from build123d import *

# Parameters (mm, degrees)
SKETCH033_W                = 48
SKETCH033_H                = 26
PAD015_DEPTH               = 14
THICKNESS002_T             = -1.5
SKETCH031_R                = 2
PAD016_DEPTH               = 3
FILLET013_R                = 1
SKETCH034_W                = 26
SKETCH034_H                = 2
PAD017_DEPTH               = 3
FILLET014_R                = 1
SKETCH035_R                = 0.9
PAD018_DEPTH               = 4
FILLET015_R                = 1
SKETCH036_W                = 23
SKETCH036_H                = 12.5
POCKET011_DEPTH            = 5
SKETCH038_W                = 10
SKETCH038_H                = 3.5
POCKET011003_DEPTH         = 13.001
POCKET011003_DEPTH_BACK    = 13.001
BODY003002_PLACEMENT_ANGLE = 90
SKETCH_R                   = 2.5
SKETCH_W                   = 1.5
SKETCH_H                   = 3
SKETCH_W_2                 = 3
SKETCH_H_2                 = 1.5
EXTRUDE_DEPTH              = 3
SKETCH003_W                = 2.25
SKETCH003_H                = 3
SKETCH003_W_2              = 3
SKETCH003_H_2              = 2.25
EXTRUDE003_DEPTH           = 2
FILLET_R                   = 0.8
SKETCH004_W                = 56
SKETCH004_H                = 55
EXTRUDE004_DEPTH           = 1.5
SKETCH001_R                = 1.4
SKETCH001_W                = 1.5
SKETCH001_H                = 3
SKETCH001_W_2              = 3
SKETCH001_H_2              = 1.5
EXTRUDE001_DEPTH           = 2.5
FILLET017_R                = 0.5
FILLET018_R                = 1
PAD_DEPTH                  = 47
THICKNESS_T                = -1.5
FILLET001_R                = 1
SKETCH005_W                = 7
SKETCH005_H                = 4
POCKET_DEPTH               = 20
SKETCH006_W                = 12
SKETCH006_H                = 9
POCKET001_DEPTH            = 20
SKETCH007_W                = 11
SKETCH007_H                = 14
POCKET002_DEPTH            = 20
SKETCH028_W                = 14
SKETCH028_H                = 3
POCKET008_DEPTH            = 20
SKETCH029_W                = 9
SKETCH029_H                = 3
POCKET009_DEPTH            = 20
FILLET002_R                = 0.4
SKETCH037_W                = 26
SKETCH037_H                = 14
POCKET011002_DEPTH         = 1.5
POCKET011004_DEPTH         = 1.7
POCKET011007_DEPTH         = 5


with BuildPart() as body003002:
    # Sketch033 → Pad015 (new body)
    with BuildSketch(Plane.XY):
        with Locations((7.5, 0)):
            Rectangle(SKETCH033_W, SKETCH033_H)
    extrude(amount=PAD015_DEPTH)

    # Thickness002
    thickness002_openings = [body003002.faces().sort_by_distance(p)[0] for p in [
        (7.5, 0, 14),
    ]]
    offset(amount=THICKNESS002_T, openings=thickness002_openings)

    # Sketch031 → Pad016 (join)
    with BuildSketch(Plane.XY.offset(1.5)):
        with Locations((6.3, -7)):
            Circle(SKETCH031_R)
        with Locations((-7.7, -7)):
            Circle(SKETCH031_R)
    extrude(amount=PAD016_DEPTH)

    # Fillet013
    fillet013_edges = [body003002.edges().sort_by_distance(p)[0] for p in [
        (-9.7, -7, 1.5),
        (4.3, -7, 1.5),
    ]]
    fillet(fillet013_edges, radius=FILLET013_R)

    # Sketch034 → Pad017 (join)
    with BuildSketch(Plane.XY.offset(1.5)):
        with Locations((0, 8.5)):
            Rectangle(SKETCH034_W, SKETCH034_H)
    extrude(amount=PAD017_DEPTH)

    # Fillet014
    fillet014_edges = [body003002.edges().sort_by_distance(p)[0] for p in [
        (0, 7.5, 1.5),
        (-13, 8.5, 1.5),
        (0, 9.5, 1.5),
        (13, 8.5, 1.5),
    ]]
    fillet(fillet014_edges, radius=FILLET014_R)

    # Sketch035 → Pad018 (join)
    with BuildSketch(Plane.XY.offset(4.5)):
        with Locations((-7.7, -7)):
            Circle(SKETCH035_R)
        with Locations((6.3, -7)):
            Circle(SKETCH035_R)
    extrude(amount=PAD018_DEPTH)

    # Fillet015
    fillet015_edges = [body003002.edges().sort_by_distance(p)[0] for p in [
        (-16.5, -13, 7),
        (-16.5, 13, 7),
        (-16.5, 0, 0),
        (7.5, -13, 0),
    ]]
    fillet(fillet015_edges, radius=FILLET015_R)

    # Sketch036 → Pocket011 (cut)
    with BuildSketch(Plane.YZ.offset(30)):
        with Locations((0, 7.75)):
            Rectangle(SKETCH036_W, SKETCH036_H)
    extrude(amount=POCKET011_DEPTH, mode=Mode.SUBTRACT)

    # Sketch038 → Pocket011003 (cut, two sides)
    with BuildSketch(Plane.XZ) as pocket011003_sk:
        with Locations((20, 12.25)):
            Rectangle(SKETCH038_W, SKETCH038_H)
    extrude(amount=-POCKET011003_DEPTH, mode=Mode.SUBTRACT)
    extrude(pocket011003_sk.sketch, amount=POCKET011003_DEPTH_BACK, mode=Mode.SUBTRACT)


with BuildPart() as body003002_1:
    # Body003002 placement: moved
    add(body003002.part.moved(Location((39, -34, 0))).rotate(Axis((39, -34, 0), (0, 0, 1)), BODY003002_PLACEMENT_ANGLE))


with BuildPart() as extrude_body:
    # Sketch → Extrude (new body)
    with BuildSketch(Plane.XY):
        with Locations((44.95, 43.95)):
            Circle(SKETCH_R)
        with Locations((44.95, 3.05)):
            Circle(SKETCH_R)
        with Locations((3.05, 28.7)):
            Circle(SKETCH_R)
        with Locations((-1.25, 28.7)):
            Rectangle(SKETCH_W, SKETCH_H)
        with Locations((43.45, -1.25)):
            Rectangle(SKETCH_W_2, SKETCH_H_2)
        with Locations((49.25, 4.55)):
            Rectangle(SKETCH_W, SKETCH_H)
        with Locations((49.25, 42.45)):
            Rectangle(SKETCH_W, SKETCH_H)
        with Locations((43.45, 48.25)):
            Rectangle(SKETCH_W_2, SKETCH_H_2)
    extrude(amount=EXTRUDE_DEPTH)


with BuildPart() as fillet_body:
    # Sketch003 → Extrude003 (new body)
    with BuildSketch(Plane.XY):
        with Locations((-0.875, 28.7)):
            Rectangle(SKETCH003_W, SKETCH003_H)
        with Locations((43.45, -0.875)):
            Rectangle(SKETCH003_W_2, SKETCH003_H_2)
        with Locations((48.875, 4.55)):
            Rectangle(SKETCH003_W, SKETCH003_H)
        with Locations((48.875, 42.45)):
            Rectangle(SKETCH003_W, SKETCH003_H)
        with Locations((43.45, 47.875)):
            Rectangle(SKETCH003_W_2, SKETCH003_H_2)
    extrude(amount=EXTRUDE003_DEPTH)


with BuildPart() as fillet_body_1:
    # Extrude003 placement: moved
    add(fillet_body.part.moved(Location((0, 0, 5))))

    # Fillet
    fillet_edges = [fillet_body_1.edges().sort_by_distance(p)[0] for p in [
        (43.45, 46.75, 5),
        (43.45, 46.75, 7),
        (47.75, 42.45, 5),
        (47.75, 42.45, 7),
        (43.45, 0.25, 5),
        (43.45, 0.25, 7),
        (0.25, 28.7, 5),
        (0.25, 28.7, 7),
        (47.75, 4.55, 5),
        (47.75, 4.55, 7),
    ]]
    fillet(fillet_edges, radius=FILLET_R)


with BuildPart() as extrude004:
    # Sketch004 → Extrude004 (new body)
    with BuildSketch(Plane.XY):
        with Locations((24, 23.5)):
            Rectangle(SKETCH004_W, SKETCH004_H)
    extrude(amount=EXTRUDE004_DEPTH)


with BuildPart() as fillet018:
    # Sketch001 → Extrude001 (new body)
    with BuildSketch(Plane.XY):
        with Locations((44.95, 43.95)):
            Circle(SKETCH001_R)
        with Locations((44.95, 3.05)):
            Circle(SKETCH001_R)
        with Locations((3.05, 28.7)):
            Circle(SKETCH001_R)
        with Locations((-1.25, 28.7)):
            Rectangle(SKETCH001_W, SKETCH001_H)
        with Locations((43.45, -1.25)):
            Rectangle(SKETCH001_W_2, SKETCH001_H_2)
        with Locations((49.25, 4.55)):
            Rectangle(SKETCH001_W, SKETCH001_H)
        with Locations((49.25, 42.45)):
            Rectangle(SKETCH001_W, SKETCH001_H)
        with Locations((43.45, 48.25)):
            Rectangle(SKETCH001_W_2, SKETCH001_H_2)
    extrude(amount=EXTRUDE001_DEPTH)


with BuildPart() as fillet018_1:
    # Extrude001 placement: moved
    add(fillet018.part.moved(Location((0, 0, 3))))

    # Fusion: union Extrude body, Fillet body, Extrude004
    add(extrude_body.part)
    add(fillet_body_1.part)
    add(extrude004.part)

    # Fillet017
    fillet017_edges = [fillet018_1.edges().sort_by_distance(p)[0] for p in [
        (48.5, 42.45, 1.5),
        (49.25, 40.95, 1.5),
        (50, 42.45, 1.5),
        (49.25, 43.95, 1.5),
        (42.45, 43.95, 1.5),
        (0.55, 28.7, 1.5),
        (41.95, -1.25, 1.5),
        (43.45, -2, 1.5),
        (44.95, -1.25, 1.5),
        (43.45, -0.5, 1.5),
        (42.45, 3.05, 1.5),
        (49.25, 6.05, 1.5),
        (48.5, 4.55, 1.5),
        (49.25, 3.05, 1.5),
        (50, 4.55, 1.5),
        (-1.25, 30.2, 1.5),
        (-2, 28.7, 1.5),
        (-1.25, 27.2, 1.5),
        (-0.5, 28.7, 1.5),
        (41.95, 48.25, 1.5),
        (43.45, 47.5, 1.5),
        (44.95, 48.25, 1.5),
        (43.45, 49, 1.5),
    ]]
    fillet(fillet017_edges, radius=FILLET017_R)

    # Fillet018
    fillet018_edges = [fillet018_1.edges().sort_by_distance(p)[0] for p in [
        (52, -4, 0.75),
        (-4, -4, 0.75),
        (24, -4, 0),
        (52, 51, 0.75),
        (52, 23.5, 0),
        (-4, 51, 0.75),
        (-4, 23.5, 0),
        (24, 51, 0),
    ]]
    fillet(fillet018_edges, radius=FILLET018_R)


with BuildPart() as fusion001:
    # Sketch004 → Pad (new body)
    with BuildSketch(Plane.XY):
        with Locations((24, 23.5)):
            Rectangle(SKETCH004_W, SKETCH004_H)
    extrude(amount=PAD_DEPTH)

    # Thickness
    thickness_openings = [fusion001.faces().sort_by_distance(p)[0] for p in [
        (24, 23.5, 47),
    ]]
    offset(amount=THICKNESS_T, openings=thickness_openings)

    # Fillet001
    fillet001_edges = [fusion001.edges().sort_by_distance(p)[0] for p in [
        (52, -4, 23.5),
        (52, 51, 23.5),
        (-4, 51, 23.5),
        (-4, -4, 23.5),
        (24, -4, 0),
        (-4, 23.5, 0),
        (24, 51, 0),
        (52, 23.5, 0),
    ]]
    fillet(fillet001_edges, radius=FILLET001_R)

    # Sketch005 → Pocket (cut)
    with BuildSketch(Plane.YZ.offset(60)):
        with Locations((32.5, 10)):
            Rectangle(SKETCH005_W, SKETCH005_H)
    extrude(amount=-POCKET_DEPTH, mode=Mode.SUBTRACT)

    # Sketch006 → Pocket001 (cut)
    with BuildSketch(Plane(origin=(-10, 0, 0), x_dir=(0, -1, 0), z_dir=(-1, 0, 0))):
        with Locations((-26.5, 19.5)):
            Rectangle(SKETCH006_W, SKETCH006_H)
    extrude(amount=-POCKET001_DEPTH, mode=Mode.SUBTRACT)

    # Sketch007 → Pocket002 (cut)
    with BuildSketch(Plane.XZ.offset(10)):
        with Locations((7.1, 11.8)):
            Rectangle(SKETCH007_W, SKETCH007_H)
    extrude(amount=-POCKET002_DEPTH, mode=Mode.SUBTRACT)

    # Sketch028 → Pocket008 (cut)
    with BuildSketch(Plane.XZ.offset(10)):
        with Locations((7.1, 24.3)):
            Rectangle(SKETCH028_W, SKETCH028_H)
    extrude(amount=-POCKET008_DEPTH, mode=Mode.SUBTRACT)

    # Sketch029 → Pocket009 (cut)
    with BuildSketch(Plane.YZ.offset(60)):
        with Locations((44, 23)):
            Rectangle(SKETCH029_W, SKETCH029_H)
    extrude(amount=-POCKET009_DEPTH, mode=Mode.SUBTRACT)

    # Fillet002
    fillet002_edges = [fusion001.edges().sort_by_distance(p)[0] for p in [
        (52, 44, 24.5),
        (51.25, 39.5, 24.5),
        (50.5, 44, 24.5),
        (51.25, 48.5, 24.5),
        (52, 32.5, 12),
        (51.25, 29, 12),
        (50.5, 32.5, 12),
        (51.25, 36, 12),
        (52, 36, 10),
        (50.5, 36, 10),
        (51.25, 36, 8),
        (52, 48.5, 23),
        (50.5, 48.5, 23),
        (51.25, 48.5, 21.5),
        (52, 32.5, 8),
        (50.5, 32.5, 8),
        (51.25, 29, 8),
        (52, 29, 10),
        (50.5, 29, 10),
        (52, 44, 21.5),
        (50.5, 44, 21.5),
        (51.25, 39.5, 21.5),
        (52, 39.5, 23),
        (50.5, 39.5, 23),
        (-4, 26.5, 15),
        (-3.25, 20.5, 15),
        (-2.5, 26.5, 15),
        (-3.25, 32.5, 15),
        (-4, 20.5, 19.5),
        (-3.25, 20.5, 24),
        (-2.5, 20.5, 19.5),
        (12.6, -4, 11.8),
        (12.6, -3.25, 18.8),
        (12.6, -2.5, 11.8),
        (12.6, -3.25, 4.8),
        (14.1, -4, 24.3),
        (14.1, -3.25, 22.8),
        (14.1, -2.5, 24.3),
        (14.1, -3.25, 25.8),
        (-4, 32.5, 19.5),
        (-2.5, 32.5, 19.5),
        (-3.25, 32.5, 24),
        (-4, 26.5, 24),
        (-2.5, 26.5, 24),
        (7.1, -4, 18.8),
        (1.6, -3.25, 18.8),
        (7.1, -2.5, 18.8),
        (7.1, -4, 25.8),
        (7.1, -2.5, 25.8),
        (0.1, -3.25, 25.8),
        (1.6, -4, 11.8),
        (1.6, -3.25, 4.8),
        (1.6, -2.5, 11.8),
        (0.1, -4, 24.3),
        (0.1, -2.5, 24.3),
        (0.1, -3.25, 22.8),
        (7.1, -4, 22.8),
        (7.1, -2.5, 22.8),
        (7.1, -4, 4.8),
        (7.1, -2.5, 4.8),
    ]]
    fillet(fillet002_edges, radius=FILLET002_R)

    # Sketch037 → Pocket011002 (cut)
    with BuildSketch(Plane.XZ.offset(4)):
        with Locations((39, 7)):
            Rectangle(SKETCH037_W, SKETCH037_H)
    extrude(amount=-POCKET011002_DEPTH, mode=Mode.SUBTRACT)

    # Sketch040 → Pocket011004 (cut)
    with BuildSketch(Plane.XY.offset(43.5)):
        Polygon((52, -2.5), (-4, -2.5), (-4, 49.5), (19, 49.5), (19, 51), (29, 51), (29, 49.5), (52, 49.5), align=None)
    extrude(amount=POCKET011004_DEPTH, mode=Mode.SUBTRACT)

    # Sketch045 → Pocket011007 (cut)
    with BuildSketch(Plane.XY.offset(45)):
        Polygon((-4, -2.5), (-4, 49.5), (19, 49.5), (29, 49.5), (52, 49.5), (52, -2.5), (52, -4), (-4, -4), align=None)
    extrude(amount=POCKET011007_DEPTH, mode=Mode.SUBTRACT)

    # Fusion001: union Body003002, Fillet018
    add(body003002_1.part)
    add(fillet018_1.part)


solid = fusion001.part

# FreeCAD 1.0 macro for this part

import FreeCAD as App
import Part
import Sketcher
Q = App.Units.Quantity


def edges_at(feature, points):
    """Names of the edges that pass closest to the given points."""
    edges = feature.Shape.Edges
    near = lambda p: min(range(len(edges)), key=lambda i: edges[i].distToShape(Part.Vertex(*p))[0])
    return sorted({f"Edge{near(p) + 1}" for p in points})


def faces_at(feature, points):
    """Names of the faces that lie closest to the given points."""
    faces = feature.Shape.Faces
    near = lambda p: min(range(len(faces)), key=lambda i: faces[i].distToShape(Part.Vertex(*p))[0])
    return sorted({f"Face{near(p) + 1}" for p in points})


def add_polygon(sketch, points):
    """Adds a closed chain of lines whose ends are joined by coincident constraints."""
    first, n = sketch.GeometryCount, len(points)
    for a, b in zip(points, points[1:] + points[:1]):
        sketch.addGeometry(Part.LineSegment(App.Vector(*a, 0), App.Vector(*b, 0)), False)
    for i in range(n):
        sketch.addConstraint(Sketcher.Constraint("Coincident", first + i, 2, first + (i + 1) % n, 1))

doc = App.newDocument("Part")
body = doc.addObject("PartDesign::Body", "Body")

sketch1 = body.newObject("Sketcher::SketchObject", "Sketch")
sketch1.AttachmentSupport = (doc.getObject("XY_Plane"), [""])
sketch1.MapMode = "FlatFace"
add_polygon(sketch1, [(-16, 13), (-16, -13), (32, -13), (32, 13)])
sketch1.addConstraint([
    Sketcher.Constraint("Vertical", 0),
    Sketcher.Constraint("Horizontal", 1),
    Sketcher.Constraint("Vertical", 2),
    Sketcher.Constraint("Horizontal", 3),
    Sketcher.Constraint("DistanceX", 1, 1, 1, 2, Q("48 mm")),
    Sketcher.Constraint("DistanceY", 0, 2, 0, 1, Q("26 mm")),
    Sketcher.Constraint("DistanceY", 0, 2, -1, 1, Q("13 mm")),
    Sketcher.Constraint("DistanceX", 0, 2, -1, 1, Q("16.5 mm")),
])
pad1 = body.newObject("PartDesign::Pad", "Pad")
pad1.Profile = sketch1
pad1.Length = 14
doc.recompute()

thickness = body.newObject("PartDesign::Thickness", "Thickness")
thickness.Base = (pad1, faces_at(pad1, [(7.5, 0, 14)]))
thickness.Value = 1.5
thickness.Reversed = True
thickness.Join = "Arc"

sketch2 = body.newObject("Sketcher::SketchObject", "Sketch001")
sketch2.AttachmentSupport = (doc.getObject("XY_Plane"), [""])
sketch2.MapMode = "FlatFace"
sketch2.AttachmentOffset = App.Placement(App.Vector(0, 0, 1.5), App.Rotation())
sketch2.addGeometry([
    Part.Circle(App.Vector(6.3, -7, 0), App.Vector(0, 0, 1), 2),
    Part.Circle(App.Vector(-7.7, -7, 0), App.Vector(0, 0, 1), 2),
], False)
sketch2.addConstraint([
    Sketcher.Constraint("Equal", 0, 1),
    Sketcher.Constraint("Horizontal", 0, 3, 1, 3),
    Sketcher.Constraint("Diameter", 0, Q("4 mm")),
    Sketcher.Constraint("DistanceY", 0, 3, -1, 1, Q("7 mm")),
    Sketcher.Constraint("DistanceX", 1, 3, 0, 3, Q("14 mm")),
    Sketcher.Constraint("DistanceX", -1, 1, 0, 3, Q("6.3 mm")),
])
pad2 = body.newObject("PartDesign::Pad", "Pad001")
pad2.Profile = sketch2
pad2.Length = 3
doc.recompute()

fillet = body.newObject("PartDesign::Fillet", "Fillet")
fillet.Base = (pad2, edges_at(pad2, [(-9.7, -7, 1.5), (4.3, -7, 1.5)]))
fillet.Radius = 1

sketch3 = body.newObject("Sketcher::SketchObject", "Sketch002")
sketch3.AttachmentSupport = (doc.getObject("XY_Plane"), [""])
sketch3.MapMode = "FlatFace"
sketch3.AttachmentOffset = App.Placement(App.Vector(0, 0, 1.5), App.Rotation())
add_polygon(sketch3, [(-13, 9.5), (-13, 7.5), (13, 7.5), (13, 9.5)])
sketch3.addConstraint([
    Sketcher.Constraint("Vertical", 0),
    Sketcher.Constraint("Horizontal", 1),
    Sketcher.Constraint("Vertical", 2),
    Sketcher.Constraint("Horizontal", 3),
    Sketcher.Constraint("DistanceX", 1, 1, 1, 2, Q("26 mm")),
    Sketcher.Constraint("DistanceY", 0, 2, 0, 1, Q("2 mm")),
    Sketcher.Constraint("DistanceX", 0, 2, -1, 1, Q("13 mm")),
    Sketcher.Constraint("DistanceY", -1, 1, 0, 2, Q("7.5 mm")),
])
pad3 = body.newObject("PartDesign::Pad", "Pad002")
pad3.Profile = sketch3
pad3.Length = 3
doc.recompute()

fillet2 = body.newObject("PartDesign::Fillet", "Fillet001")
fillet2.Base = (pad3, edges_at(pad3, [
    (0, 7.5, 1.5),
    (-13, 8.5, 1.5),
    (0, 9.5, 1.5),
    (13, 8.5, 1.5),
]))
fillet2.Radius = 1

sketch4 = body.newObject("Sketcher::SketchObject", "Sketch003")
sketch4.AttachmentSupport = (doc.getObject("XY_Plane"), [""])
sketch4.MapMode = "FlatFace"
sketch4.AttachmentOffset = App.Placement(App.Vector(0, 0, 4.5), App.Rotation())
sketch4.addGeometry([
    Part.Circle(App.Vector(-7.7, -7, 0), App.Vector(0, 0, 1), 0.9),
    Part.Circle(App.Vector(6.3, -7, 0), App.Vector(0, 0, 1), 0.9),
], False)
sketch4.addConstraint([
    Sketcher.Constraint("Equal", 0, 1),
    Sketcher.Constraint("Horizontal", 0, 3, 1, 3),
    Sketcher.Constraint("Diameter", 0, Q("1.8 mm")),
    Sketcher.Constraint("DistanceY", 0, 3, -1, 1, Q("7 mm")),
    Sketcher.Constraint("DistanceX", 0, 3, 1, 3, Q("14 mm")),
    Sketcher.Constraint("DistanceX", 0, 3, -1, 1, Q("7.7 mm")),
])
pad4 = body.newObject("PartDesign::Pad", "Pad003")
pad4.Profile = sketch4
pad4.Length = 4
doc.recompute()

fillet3 = body.newObject("PartDesign::Fillet", "Fillet002")
fillet3.Base = (pad4, edges_at(pad4, [
    (-16.5, -13, 7),
    (-16.5, 13, 7),
    (-16.5, 0, 0),
    (7.5, -13, 0),
]))
fillet3.Radius = 1

sketch5 = body.newObject("Sketcher::SketchObject", "Sketch004")
sketch5.AttachmentSupport = (doc.getObject("YZ_Plane"), [""])
sketch5.MapMode = "FlatFace"
sketch5.AttachmentOffset = App.Placement(App.Vector(0, 0, 30), App.Rotation())
add_polygon(sketch5, [(-12, 14), (-12, 2), (12, 2), (12, 14)])
sketch5.addConstraint([
    Sketcher.Constraint("Vertical", 0),
    Sketcher.Constraint("Horizontal", 1),
    Sketcher.Constraint("Vertical", 2),
    Sketcher.Constraint("Horizontal", 3),
    Sketcher.Constraint("DistanceX", 1, 1, 1, 2, Q("23 mm")),
    Sketcher.Constraint("DistanceY", 0, 2, 0, 1, Q("12.5 mm")),
    Sketcher.Constraint("DistanceY", -1, 1, 2, 2, Q("14 mm")),
    Sketcher.Constraint("DistanceX", 0, 2, -1, 1, Q("11.5 mm")),
])
pocket1 = body.newObject("PartDesign::Pocket", "Pocket")
pocket1.Profile = sketch5
pocket1.Length = 5
pocket1.Reversed = True

sketch6 = body.newObject("Sketcher::SketchObject", "Sketch005")
sketch6.AttachmentSupport = (doc.getObject("XZ_Plane"), [""])
sketch6.MapMode = "FlatFace"
add_polygon(sketch6, [(15, 14), (15, 10.5), (25, 10.5), (25, 14)])
sketch6.addConstraint([
    Sketcher.Constraint("Vertical", 0),
    Sketcher.Constraint("Horizontal", 1),
    Sketcher.Constraint("Vertical", 2),
    Sketcher.Constraint("Horizontal", 3),
    Sketcher.Constraint("DistanceX", 1, 1, 1, 2, Q("10 mm")),
    Sketcher.Constraint("DistanceY", 0, 2, 0, 1, Q("3.5 mm")),
    Sketcher.Constraint("DistanceX", -1, 1, 0, 2, Q("15 mm")),
    Sketcher.Constraint("DistanceY", -1, 1, 2, 2, Q("14 mm")),
])
pocket2 = body.newObject("PartDesign::Pocket", "Pocket001")
pocket2.Profile = sketch6
pocket2.Type = "ThroughAll"
pocket2.Midplane = True
body2 = doc.addObject("PartDesign::Body", "Body001")
doc.recompute()

body.Placement = App.Placement(App.Vector(39, -34, 0), App.Rotation(App.Vector(0, 0, 1), 90))
boolean = body2.newObject("PartDesign::Boolean", "Boolean")
boolean.Type = "Fuse"
boolean.addObjects([body])
body3 = doc.addObject("PartDesign::Body", "Body002")
body3.AllowCompound = True

sketch7 = body3.newObject("Sketcher::SketchObject", "Sketch006")
sketch7.AttachmentSupport = (doc.getObject("XY_Plane002"), [""])
sketch7.MapMode = "FlatFace"
sketch7.addGeometry(Part.Circle(App.Vector(45, 44, 0), App.Vector(0, 0, 1), 2.5), False)
sketch7.addGeometry(Part.Circle(App.Vector(45, 3, 0), App.Vector(0, 0, 1), 2.5), False)
sketch7.addGeometry(Part.Circle(App.Vector(3, 28.7, 0), App.Vector(0, 0, 1), 2.5), False)
add_polygon(sketch7, [(-2, 30.2), (-2, 27.2), (-0.5, 27.2), (-0.5, 30.2)])
add_polygon(sketch7, [(42, -0.5), (42, -2), (45, -2), (45, -0.5)])
add_polygon(sketch7, [(48.5, 6), (48.5, 3), (50, 3), (50, 6)])
add_polygon(sketch7, [(48.5, 44), (48.5, 41), (50, 41), (50, 44)])
add_polygon(sketch7, [(42, 49), (42, 47.5), (45, 47.5), (45, 49)])
sketch7.addConstraint([
    Sketcher.Constraint("Vertical", 3),
    Sketcher.Constraint("Horizontal", 4),
    Sketcher.Constraint("Vertical", 5),
    Sketcher.Constraint("Horizontal", 6),
    Sketcher.Constraint("Vertical", 7),
    Sketcher.Constraint("Horizontal", 8),
    Sketcher.Constraint("Vertical", 9),
    Sketcher.Constraint("Horizontal", 10),
    Sketcher.Constraint("Vertical", 11),
    Sketcher.Constraint("Horizontal", 12),
    Sketcher.Constraint("Vertical", 13),
    Sketcher.Constraint("Horizontal", 14),
    Sketcher.Constraint("Vertical", 15),
    Sketcher.Constraint("Horizontal", 16),
    Sketcher.Constraint("Vertical", 17),
    Sketcher.Constraint("Horizontal", 18),
    Sketcher.Constraint("Vertical", 19),
    Sketcher.Constraint("Horizontal", 20),
    Sketcher.Constraint("Vertical", 21),
    Sketcher.Constraint("Horizontal", 22),
    Sketcher.Constraint("Equal", 0, 1),
    Sketcher.Constraint("Equal", 1, 2),
    Sketcher.Constraint("Horizontal", 1, 3, 11, 2),
    Sketcher.Constraint("Horizontal", 0, 3, 17, 2),
    Sketcher.Constraint("Vertical", 0, 3, 1, 3),
    Sketcher.Constraint("Vertical", 1, 3, 8, 2),
    Sketcher.Constraint("Vertical", 14, 2, 15, 2),
    Sketcher.Constraint("Vertical", 13, 2, 16, 2),
    Sketcher.Constraint("Vertical", 10, 2, 19, 2),
    Sketcher.Constraint("Vertical", 9, 2, 20, 2),
    Sketcher.Constraint("Equal", 6, 12),
    Sketcher.Constraint("Equal", 22, 3),
    Sketcher.Constraint("Equal", 18, 7),
    Sketcher.Constraint("Equal", 5, 11),
    Sketcher.Constraint("Equal", 13, 15),
    Sketcher.Constraint("Equal", 9, 19),
    Sketcher.Constraint("Diameter", 0, Q("5 mm")),
    Sketcher.Constraint("DistanceX", 8, 1, 8, 2, Q("3 mm")),
    Sketcher.Constraint("DistanceX", 4, 1, 4, 2, Q("1.5 mm")),
    Sketcher.Constraint("DistanceX", 3, 2, -1, 1, Q("2 mm")),
    Sketcher.Constraint("DistanceY", 7, 2, -1, 1, Q("2 mm")),
    Sketcher.Constraint("DistanceX", -1, 1, 12, 2, Q("50 mm")),
    Sketcher.Constraint("DistanceY", -1, 1, 21, 2, Q("49 mm")),
    Sketcher.Constraint("DistanceY", -1, 1, 2, 3, Q("28.7 mm")),
    Sketcher.Constraint("DistanceY", -1, 1, 3, 2, Q("27.2 mm")),
    Sketcher.Constraint("DistanceY", 1, 3, 0, 3, Q("40.9 mm")),
    Sketcher.Constraint("DistanceX", 2, 3, 0, 3, Q("41.9 mm")),
    Sketcher.Constraint("DistanceX", -1, 1, 0, 3, Q("44.95 mm")),
    Sketcher.Constraint("DistanceY", -1, 1, 0, 3, Q("43.95 mm")),
])
pad5 = body3.newObject("PartDesign::Pad", "Pad004")
pad5.Profile = sketch7
pad5.Length = 3
body4 = doc.addObject("PartDesign::Body", "Body003")
body4.AllowCompound = True

sketch8 = body4.newObject("Sketcher::SketchObject", "Sketch007")
sketch8.AttachmentSupport = (doc.getObject("XY_Plane003"), [""])
sketch8.MapMode = "FlatFace"
add_polygon(sketch8, [(-2, 30.2), (-2, 27.2), (0.2, 27.2), (0.2, 30.2)])
add_polygon(sketch8, [(42, 0.2), (42, -2), (45, -2), (45, 0.2)])
add_polygon(sketch8, [(47.8, 6), (47.8, 3), (50, 3), (50, 6)])
add_polygon(sketch8, [(47.8, 44), (47.8, 41), (50, 41), (50, 44)])
add_polygon(sketch8, [(42, 49), (42, 46.8), (45, 46.8), (45, 49)])
sketch8.addConstraint([
    Sketcher.Constraint("Vertical", 0),
    Sketcher.Constraint("Horizontal", 1),
    Sketcher.Constraint("Vertical", 2),
    Sketcher.Constraint("Horizontal", 3),
    Sketcher.Constraint("Vertical", 4),
    Sketcher.Constraint("Horizontal", 5),
    Sketcher.Constraint("Vertical", 6),
    Sketcher.Constraint("Horizontal", 7),
    Sketcher.Constraint("Vertical", 8),
    Sketcher.Constraint("Horizontal", 9),
    Sketcher.Constraint("Vertical", 10),
    Sketcher.Constraint("Horizontal", 11),
    Sketcher.Constraint("Vertical", 12),
    Sketcher.Constraint("Horizontal", 13),
    Sketcher.Constraint("Vertical", 14),
    Sketcher.Constraint("Horizontal", 15),
    Sketcher.Constraint("Vertical", 16),
    Sketcher.Constraint("Horizontal", 17),
    Sketcher.Constraint("Vertical", 18),
    Sketcher.Constraint("Horizontal", 19),
    Sketcher.Constraint("Vertical", 11, 2, 12, 2),
    Sketcher.Constraint("Vertical", 10, 2, 13, 2),
    Sketcher.Constraint("Vertical", 7, 2, 16, 2),
    Sketcher.Constraint("Vertical", 6, 2, 17, 2),
    Sketcher.Constraint("Equal", 3, 9),
    Sketcher.Constraint("Equal", 19, 0),
    Sketcher.Constraint("Equal", 15, 4),
    Sketcher.Constraint("Equal", 2, 8),
    Sketcher.Constraint("Equal", 10, 12),
    Sketcher.Constraint("Equal", 6, 16),
    Sketcher.Constraint("DistanceX", 5, 1, 5, 2, Q("3 mm")),
    Sketcher.Constraint("DistanceX", 0, 2, -1, 1, Q("2 mm")),
    Sketcher.Constraint("DistanceY", 4, 2, -1, 1, Q("2 mm")),
    Sketcher.Constraint("DistanceX", -1, 1, 9, 2, Q("50 mm")),
    Sketcher.Constraint("DistanceY", -1, 1, 18, 2, Q("49 mm")),
    Sketcher.Constraint("DistanceX", 1, 1, 1, 2, Q("2.25 mm")),
    Sketcher.Constraint("DistanceY", -1, 1, 0, 2, Q("27.2 mm")),
    Sketcher.Constraint("DistanceX", 1, 2, 4, 2, Q("41.7 mm")),
    Sketcher.Constraint("DistanceY", 6, 2, 8, 2, Q("2.8 mm")),
    Sketcher.Constraint("DistanceY", 11, 2, 12, 2, Q("34.9 mm")),
])
pad6 = body4.newObject("PartDesign::Pad", "Pad005")
pad6.Profile = sketch8
pad6.Length = 2
body5 = doc.addObject("PartDesign::Body", "Body004")
body5.AllowCompound = True
doc.recompute()

body4.Placement = App.Placement(App.Vector(0, 0, 5), App.Rotation(App.Vector(0, 0, 1), 0))
boolean2 = body5.newObject("PartDesign::Boolean", "Boolean001")
boolean2.Type = "Fuse"
boolean2.addObjects([body4])
doc.recompute()

fillet4 = body5.newObject("PartDesign::Fillet", "Fillet003")
fillet4.Base = (boolean2, edges_at(boolean2, [
    (43.45, 46.75, 5),
    (43.45, 46.75, 7),
    (47.75, 42.45, 5),
    (47.75, 42.45, 7),
    (43.45, 0.25, 5),
    (43.45, 0.25, 7),
    (0.25, 28.7, 5),
    (0.25, 28.7, 7),
    (47.75, 4.55, 5),
    (47.75, 4.55, 7),
]))
fillet4.Radius = 0.8
body6 = doc.addObject("PartDesign::Body", "Body005")

sketch9 = body6.newObject("Sketcher::SketchObject", "Sketch008")
sketch9.AttachmentSupport = (doc.getObject("XY_Plane005"), [""])
sketch9.MapMode = "FlatFace"
add_polygon(sketch9, [(-4, 51), (-4, -4), (52, -4), (52, 51)])
sketch9.addConstraint([
    Sketcher.Constraint("Vertical", 0),
    Sketcher.Constraint("Horizontal", 1),
    Sketcher.Constraint("Vertical", 2),
    Sketcher.Constraint("Horizontal", 3),
    Sketcher.Constraint("DistanceX", 1, 1, 1, 2, Q("56 mm")),
    Sketcher.Constraint("DistanceY", 0, 2, 0, 1, Q("55 mm")),
    Sketcher.Constraint("DistanceX", 0, 2, -1, 1, Q("4 mm")),
    Sketcher.Constraint("DistanceY", 0, 2, -1, 1, Q("4 mm")),
])
pad7 = body6.newObject("PartDesign::Pad", "Pad006")
pad7.Profile = sketch9
pad7.Length = 1.5
body7 = doc.addObject("PartDesign::Body", "Body006")
body7.AllowCompound = True

sketch10 = body7.newObject("Sketcher::SketchObject", "Sketch009")
sketch10.AttachmentSupport = (doc.getObject("XY_Plane006"), [""])
sketch10.MapMode = "FlatFace"
sketch10.addGeometry(Part.Circle(App.Vector(45, 44, 0), App.Vector(0, 0, 1), 1.4), False)
sketch10.addGeometry(Part.Circle(App.Vector(45, 3, 0), App.Vector(0, 0, 1), 1.4), False)
sketch10.addGeometry(Part.Circle(App.Vector(3, 28.7, 0), App.Vector(0, 0, 1), 1.4), False)
add_polygon(sketch10, [(-2, 30.2), (-2, 27.2), (-0.5, 27.2), (-0.5, 30.2)])
add_polygon(sketch10, [(42, -0.5), (42, -2), (45, -2), (45, -0.5)])
add_polygon(sketch10, [(48.5, 6), (48.5, 3), (50, 3), (50, 6)])
add_polygon(sketch10, [(48.5, 44), (48.5, 41), (50, 41), (50, 44)])
add_polygon(sketch10, [(42, 49), (42, 47.5), (45, 47.5), (45, 49)])
sketch10.addConstraint([
    Sketcher.Constraint("Vertical", 3),
    Sketcher.Constraint("Horizontal", 4),
    Sketcher.Constraint("Vertical", 5),
    Sketcher.Constraint("Horizontal", 6),
    Sketcher.Constraint("Vertical", 7),
    Sketcher.Constraint("Horizontal", 8),
    Sketcher.Constraint("Vertical", 9),
    Sketcher.Constraint("Horizontal", 10),
    Sketcher.Constraint("Vertical", 11),
    Sketcher.Constraint("Horizontal", 12),
    Sketcher.Constraint("Vertical", 13),
    Sketcher.Constraint("Horizontal", 14),
    Sketcher.Constraint("Vertical", 15),
    Sketcher.Constraint("Horizontal", 16),
    Sketcher.Constraint("Vertical", 17),
    Sketcher.Constraint("Horizontal", 18),
    Sketcher.Constraint("Vertical", 19),
    Sketcher.Constraint("Horizontal", 20),
    Sketcher.Constraint("Vertical", 21),
    Sketcher.Constraint("Horizontal", 22),
    Sketcher.Constraint("Equal", 0, 1),
    Sketcher.Constraint("Equal", 1, 2),
    Sketcher.Constraint("Horizontal", 1, 3, 11, 2),
    Sketcher.Constraint("Horizontal", 0, 3, 17, 2),
    Sketcher.Constraint("Vertical", 0, 3, 1, 3),
    Sketcher.Constraint("Vertical", 1, 3, 8, 2),
    Sketcher.Constraint("Vertical", 14, 2, 15, 2),
    Sketcher.Constraint("Vertical", 13, 2, 16, 2),
    Sketcher.Constraint("Vertical", 10, 2, 19, 2),
    Sketcher.Constraint("Vertical", 9, 2, 20, 2),
    Sketcher.Constraint("Equal", 6, 12),
    Sketcher.Constraint("Equal", 22, 3),
    Sketcher.Constraint("Equal", 18, 7),
    Sketcher.Constraint("Equal", 5, 11),
    Sketcher.Constraint("Equal", 13, 15),
    Sketcher.Constraint("Equal", 9, 19),
    Sketcher.Constraint("Diameter", 0, Q("2.8 mm")),
    Sketcher.Constraint("DistanceX", 8, 1, 8, 2, Q("3 mm")),
    Sketcher.Constraint("DistanceX", 4, 1, 4, 2, Q("1.5 mm")),
    Sketcher.Constraint("DistanceX", 3, 2, -1, 1, Q("2 mm")),
    Sketcher.Constraint("DistanceY", 7, 2, -1, 1, Q("2 mm")),
    Sketcher.Constraint("DistanceX", -1, 1, 12, 2, Q("50 mm")),
    Sketcher.Constraint("DistanceY", -1, 1, 21, 2, Q("49 mm")),
    Sketcher.Constraint("DistanceY", -1, 1, 2, 3, Q("28.7 mm")),
    Sketcher.Constraint("DistanceY", -1, 1, 3, 2, Q("27.2 mm")),
    Sketcher.Constraint("DistanceY", 1, 3, 0, 3, Q("40.9 mm")),
    Sketcher.Constraint("DistanceX", 2, 3, 0, 3, Q("41.9 mm")),
    Sketcher.Constraint("DistanceX", -1, 1, 0, 3, Q("44.95 mm")),
    Sketcher.Constraint("DistanceY", -1, 1, 0, 3, Q("43.95 mm")),
])
pad8 = body7.newObject("PartDesign::Pad", "Pad007")
pad8.Profile = sketch10
pad8.Length = 2.5
body8 = doc.addObject("PartDesign::Body", "Body007")
body8.AllowCompound = True
doc.recompute()

body7.Placement = App.Placement(App.Vector(0, 0, 3), App.Rotation(App.Vector(0, 0, 1), 0))
boolean3 = body8.newObject("PartDesign::Boolean", "Boolean002")
boolean3.Type = "Fuse"
boolean3.addObjects([body7])
doc.recompute()

boolean4 = body8.newObject("PartDesign::Boolean", "Boolean003")
boolean4.Type = "Fuse"
boolean4.addObjects([body3])
doc.recompute()

boolean5 = body8.newObject("PartDesign::Boolean", "Boolean004")
boolean5.Type = "Fuse"
boolean5.addObjects([body5])
doc.recompute()

boolean6 = body8.newObject("PartDesign::Boolean", "Boolean005")
boolean6.Type = "Fuse"
boolean6.addObjects([body6])
doc.recompute()

fillet5 = body8.newObject("PartDesign::Fillet", "Fillet004")
fillet5.Base = (boolean6, edges_at(boolean6, [
    (48.5, 42.45, 1.5),
    (49.25, 40.95, 1.5),
    (50, 42.45, 1.5),
    (49.25, 43.95, 1.5),
    (42.45, 43.95, 1.5),
    (0.55, 28.7, 1.5),
    (41.95, -1.25, 1.5),
    (43.45, -2, 1.5),
    (44.95, -1.25, 1.5),
    (43.45, -0.5, 1.5),
    (42.45, 3.05, 1.5),
    (49.25, 6.05, 1.5),
    (48.5, 4.55, 1.5),
    (49.25, 3.05, 1.5),
    (50, 4.55, 1.5),
    (-1.25, 30.2, 1.5),
    (-2, 28.7, 1.5),
    (-1.25, 27.2, 1.5),
    (-0.5, 28.7, 1.5),
    (41.95, 48.25, 1.5),
    (43.45, 47.5, 1.5),
    (44.95, 48.25, 1.5),
    (43.45, 49, 1.5),
]))
fillet5.Radius = 0.5
doc.recompute()

fillet6 = body8.newObject("PartDesign::Fillet", "Fillet005")
fillet6.Base = (fillet5, edges_at(fillet5, [
    (52, -4, 0.75),
    (-4, -4, 0.75),
    (24, -4, 0),
    (52, 51, 0.75),
    (52, 23.5, 0),
    (-4, 51, 0.75),
    (-4, 23.5, 0),
    (24, 51, 0),
]))
fillet6.Radius = 1
body9 = doc.addObject("PartDesign::Body", "Body008")

sketch11 = body9.newObject("Sketcher::SketchObject", "Sketch010")
sketch11.AttachmentSupport = (doc.getObject("XY_Plane008"), [""])
sketch11.MapMode = "FlatFace"
add_polygon(sketch11, [(-4, 51), (-4, -4), (52, -4), (52, 51)])
sketch11.addConstraint([
    Sketcher.Constraint("Vertical", 0),
    Sketcher.Constraint("Horizontal", 1),
    Sketcher.Constraint("Vertical", 2),
    Sketcher.Constraint("Horizontal", 3),
    Sketcher.Constraint("DistanceX", 1, 1, 1, 2, Q("56 mm")),
    Sketcher.Constraint("DistanceY", 0, 2, 0, 1, Q("55 mm")),
    Sketcher.Constraint("DistanceX", 0, 2, -1, 1, Q("4 mm")),
    Sketcher.Constraint("DistanceY", 0, 2, -1, 1, Q("4 mm")),
])
pad9 = body9.newObject("PartDesign::Pad", "Pad008")
pad9.Profile = sketch11
pad9.Length = 47
doc.recompute()

thickness2 = body9.newObject("PartDesign::Thickness", "Thickness001")
thickness2.Base = (pad9, faces_at(pad9, [(24, 23.5, 47)]))
thickness2.Value = 1.5
thickness2.Reversed = True
thickness2.Join = "Arc"
doc.recompute()

fillet7 = body9.newObject("PartDesign::Fillet", "Fillet006")
fillet7.Base = (thickness2, edges_at(thickness2, [
    (52, -4, 23.5),
    (52, 51, 23.5),
    (-4, 51, 23.5),
    (-4, -4, 23.5),
    (24, -4, 0),
    (-4, 23.5, 0),
    (24, 51, 0),
    (52, 23.5, 0),
]))
fillet7.Radius = 1

sketch12 = body9.newObject("Sketcher::SketchObject", "Sketch011")
sketch12.AttachmentSupport = (doc.getObject("YZ_Plane008"), [""])
sketch12.MapMode = "FlatFace"
sketch12.AttachmentOffset = App.Placement(App.Vector(0, 0, 60), App.Rotation())
add_polygon(sketch12, [(29, 12), (29, 8), (36, 8), (36, 12)])
sketch12.addConstraint([
    Sketcher.Constraint("Vertical", 0),
    Sketcher.Constraint("Horizontal", 1),
    Sketcher.Constraint("Vertical", 2),
    Sketcher.Constraint("Horizontal", 3),
    Sketcher.Constraint("DistanceX", 1, 1, 1, 2, Q("7 mm")),
    Sketcher.Constraint("DistanceY", 0, 2, 0, 1, Q("4 mm")),
    Sketcher.Constraint("DistanceX", -1, 1, 0, 2, Q("29 mm")),
    Sketcher.Constraint("DistanceY", -1, 1, 0, 2, Q("8 mm")),
])
pocket3 = body9.newObject("PartDesign::Pocket", "Pocket002")
pocket3.Profile = sketch12
pocket3.Length = 20

sketch13 = body9.newObject("Sketcher::SketchObject", "Sketch012")
sketch13.AttachmentSupport = (doc.getObject("YZ_Plane008"), [""])
sketch13.MapMode = "FlatFace"
sketch13.AttachmentOffset = App.Placement(App.Vector(0, 0, -10), App.Rotation())
add_polygon(sketch13, [(32, 24), (32, 15), (20, 15), (20, 24)])
sketch13.addConstraint([
    Sketcher.Constraint("Vertical", 0),
    Sketcher.Constraint("Horizontal", 1),
    Sketcher.Constraint("Vertical", 2),
    Sketcher.Constraint("Horizontal", 3),
    Sketcher.Constraint("DistanceX", 1, 2, 1, 1, Q("12 mm")),
    Sketcher.Constraint("DistanceY", 0, 2, 0, 1, Q("9 mm")),
    Sketcher.Constraint("DistanceY", -1, 1, 0, 2, Q("15 mm")),
    Sketcher.Constraint("DistanceX", -1, 1, 0, 2, Q("32.5 mm")),
])
pocket4 = body9.newObject("PartDesign::Pocket", "Pocket003")
pocket4.Profile = sketch13
pocket4.Length = 20
pocket4.Reversed = True

sketch14 = body9.newObject("Sketcher::SketchObject", "Sketch013")
sketch14.AttachmentSupport = (doc.getObject("XZ_Plane008"), [""])
sketch14.MapMode = "FlatFace"
sketch14.AttachmentOffset = App.Placement(App.Vector(0, 0, 10), App.Rotation())
add_polygon(sketch14, [(2, 19), (2, 5), (13, 5), (13, 19)])
sketch14.addConstraint([
    Sketcher.Constraint("Vertical", 0),
    Sketcher.Constraint("Horizontal", 1),
    Sketcher.Constraint("Vertical", 2),
    Sketcher.Constraint("Horizontal", 3),
    Sketcher.Constraint("DistanceX", 1, 1, 1, 2, Q("11 mm")),
    Sketcher.Constraint("DistanceY", 0, 2, 0, 1, Q("14 mm")),
    Sketcher.Constraint("DistanceX", -1, 1, 0, 2, Q("1.6 mm")),
    Sketcher.Constraint("DistanceY", -1, 1, 0, 2, Q("4.8 mm")),
])
pocket5 = body9.newObject("PartDesign::Pocket", "Pocket004")
pocket5.Profile = sketch14
pocket5.Length = 20

sketch15 = body9.newObject("Sketcher::SketchObject", "Sketch014")
sketch15.AttachmentSupport = (doc.getObject("XZ_Plane008"), [""])
sketch15.MapMode = "FlatFace"
sketch15.AttachmentOffset = App.Placement(App.Vector(0, 0, 10), App.Rotation())
add_polygon(sketch15, [(0.1, 25.8), (0.1, 22.8), (14.1, 22.8), (14.1, 25.8)])
sketch15.addConstraint([
    Sketcher.Constraint("Vertical", 0),
    Sketcher.Constraint("Horizontal", 1),
    Sketcher.Constraint("Vertical", 2),
    Sketcher.Constraint("Horizontal", 3),
    Sketcher.Constraint("DistanceX", 1, 1, 1, 2, Q("14 mm")),
    Sketcher.Constraint("DistanceY", 0, 2, 0, 1, Q("3 mm")),
    Sketcher.Constraint("DistanceX", -1, 1, 0, 2, Q("0.1 mm")),
    Sketcher.Constraint("DistanceY", -1, 1, 0, 2, Q("22.8 mm")),
])
pocket6 = body9.newObject("PartDesign::Pocket", "Pocket005")
pocket6.Profile = sketch15
pocket6.Length = 20

sketch16 = body9.newObject("Sketcher::SketchObject", "Sketch015")
sketch16.AttachmentSupport = (doc.getObject("YZ_Plane008"), [""])
sketch16.MapMode = "FlatFace"
sketch16.AttachmentOffset = App.Placement(App.Vector(0, 0, 60), App.Rotation())
add_polygon(sketch16, [(39.5, 24.5), (39.5, 21.5), (48.5, 21.5), (48.5, 24.5)])
sketch16.addConstraint([
    Sketcher.Constraint("Vertical", 0),
    Sketcher.Constraint("Horizontal", 1),
    Sketcher.Constraint("Vertical", 2),
    Sketcher.Constraint("Horizontal", 3),
    Sketcher.Constraint("DistanceX", 1, 1, 1, 2, Q("9 mm")),
    Sketcher.Constraint("DistanceY", 0, 2, 0, 1, Q("3 mm")),
    Sketcher.Constraint("DistanceX", -1, 1, 0, 2, Q("39.5 mm")),
    Sketcher.Constraint("DistanceY", -1, 1, 0, 2, Q("21.5 mm")),
])
pocket7 = body9.newObject("PartDesign::Pocket", "Pocket006")
pocket7.Profile = sketch16
pocket7.Length = 20
doc.recompute()

fillet8 = body9.newObject("PartDesign::Fillet", "Fillet007")
fillet8.Base = (pocket7, edges_at(pocket7, [
    (52, 44, 24.5),
    (51.25, 39.5, 24.5),
    (50.5, 44, 24.5),
    (51.25, 48.5, 24.5),
    (52, 32.5, 12),
    (51.25, 29, 12),
    (50.5, 32.5, 12),
    (51.25, 36, 12),
    (52, 36, 10),
    (50.5, 36, 10),
    (51.25, 36, 8),
    (52, 48.5, 23),
    (50.5, 48.5, 23),
    (51.25, 48.5, 21.5),
    (52, 32.5, 8),
    (50.5, 32.5, 8),
    (51.25, 29, 8),
    (52, 29, 10),
    (50.5, 29, 10),
    (52, 44, 21.5),
    (50.5, 44, 21.5),
    (51.25, 39.5, 21.5),
    (52, 39.5, 23),
    (50.5, 39.5, 23),
    (-4, 26.5, 15),
    (-3.25, 20.5, 15),
    (-2.5, 26.5, 15),
    (-3.25, 32.5, 15),
    (-4, 20.5, 19.5),
    (-3.25, 20.5, 24),
    (-2.5, 20.5, 19.5),
    (12.6, -4, 11.8),
    (12.6, -3.25, 18.8),
    (12.6, -2.5, 11.8),
    (12.6, -3.25, 4.8),
    (14.1, -4, 24.3),
    (14.1, -3.25, 22.8),
    (14.1, -2.5, 24.3),
    (14.1, -3.25, 25.8),
    (-4, 32.5, 19.5),
    (-2.5, 32.5, 19.5),
    (-3.25, 32.5, 24),
    (-4, 26.5, 24),
    (-2.5, 26.5, 24),
    (7.1, -4, 18.8),
    (1.6, -3.25, 18.8),
    (7.1, -2.5, 18.8),
    (7.1, -4, 25.8),
    (7.1, -2.5, 25.8),
    (0.1, -3.25, 25.8),
    (1.6, -4, 11.8),
    (1.6, -3.25, 4.8),
    (1.6, -2.5, 11.8),
    (0.1, -4, 24.3),
    (0.1, -2.5, 24.3),
    (0.1, -3.25, 22.8),
    (7.1, -4, 22.8),
    (7.1, -2.5, 22.8),
    (7.1, -4, 4.8),
    (7.1, -2.5, 4.8),
]))
fillet8.Radius = 0.4

sketch17 = body9.newObject("Sketcher::SketchObject", "Sketch016")
sketch17.AttachmentSupport = (doc.getObject("XZ_Plane008"), [""])
sketch17.MapMode = "FlatFace"
sketch17.AttachmentOffset = App.Placement(App.Vector(0, 0, 4), App.Rotation())
add_polygon(sketch17, [(26, 14), (26, 0), (52, 0), (52, 14)])
sketch17.addConstraint([
    Sketcher.Constraint("Vertical", 0),
    Sketcher.Constraint("Horizontal", 1),
    Sketcher.Constraint("Vertical", 2),
    Sketcher.Constraint("Horizontal", 3),
    Sketcher.Constraint("PointOnObject", 0, 2, -1),
    Sketcher.Constraint("DistanceX", 1, 1, 1, 2, Q("26 mm")),
    Sketcher.Constraint("DistanceY", 0, 2, 0, 1, Q("14 mm")),
    Sketcher.Constraint("DistanceX", -1, 1, 0, 2, Q("26 mm")),
])
pocket8 = body9.newObject("PartDesign::Pocket", "Pocket007")
pocket8.Profile = sketch17
pocket8.Length = 1.5

sketch18 = body9.newObject("Sketcher::SketchObject", "Sketch017")
sketch18.AttachmentSupport = (doc.getObject("XY_Plane008"), [""])
sketch18.MapMode = "FlatFace"
sketch18.AttachmentOffset = App.Placement(App.Vector(0, 0, 43.5), App.Rotation())
add_polygon(sketch18, [(-4, -2.5), (52, -2.5), (52, 49.5), (29, 49.5), (29, 51), (19, 51), (19, 49.5), (-4, 49.5)])
sketch18.addConstraint([
    Sketcher.Constraint("Horizontal", 0),
    Sketcher.Constraint("Vertical", 1),
    Sketcher.Constraint("Horizontal", 2),
    Sketcher.Constraint("Vertical", 3),
    Sketcher.Constraint("Horizontal", 4),
    Sketcher.Constraint("Vertical", 5),
    Sketcher.Constraint("Horizontal", 6),
    Sketcher.Constraint("Vertical", 7),
    Sketcher.Constraint("Horizontal", 2, 2, 5, 2),
    Sketcher.Constraint("Equal", 2, 6),
    Sketcher.Constraint("DistanceX", 0, 1, 0, 2, Q("56 mm")),
    Sketcher.Constraint("DistanceX", 2, 2, 2, 1, Q("23 mm")),
    Sketcher.Constraint("DistanceY", 1, 1, 1, 2, Q("52 mm")),
    Sketcher.Constraint("DistanceY", 3, 1, 3, 2, Q("1.5 mm")),
    Sketcher.Constraint("DistanceX", -1, 1, 0, 2, Q("52 mm")),
    Sketcher.Constraint("DistanceY", -1, 1, 3, 2, Q("51 mm")),
])
pocket9 = body9.newObject("PartDesign::Pocket", "Pocket008")
pocket9.Profile = sketch18
pocket9.Length = 1.7
pocket9.Reversed = True

sketch19 = body9.newObject("Sketcher::SketchObject", "Sketch018")
sketch19.AttachmentSupport = (doc.getObject("XY_Plane008"), [""])
sketch19.MapMode = "FlatFace"
sketch19.AttachmentOffset = App.Placement(App.Vector(0, 0, 45), App.Rotation())
add_polygon(sketch19, [(-4, 50), (-4, -4), (52, -4), (52, 50)])
sketch19.addConstraint([
    Sketcher.Constraint("Vertical", 0),
    Sketcher.Constraint("Horizontal", 1),
    Sketcher.Constraint("Vertical", 2),
    Sketcher.Constraint("Horizontal", 3),
    Sketcher.Constraint("DistanceX", 1, 1, 1, 2, Q("56 mm")),
    Sketcher.Constraint("DistanceY", 0, 2, 0, 1, Q("53.5 mm")),
    Sketcher.Constraint("DistanceX", 0, 2, -1, 1, Q("4 mm")),
    Sketcher.Constraint("DistanceY", 0, 2, -1, 1, Q("4 mm")),
])
pocket10 = body9.newObject("PartDesign::Pocket", "Pocket009")
pocket10.Profile = sketch19
pocket10.Length = 5
pocket10.Reversed = True
doc.recompute()

boolean7 = body9.newObject("PartDesign::Boolean", "Boolean006")
boolean7.Type = "Fuse"
boolean7.addObjects([body2])
doc.recompute()

boolean8 = body9.newObject("PartDesign::Boolean", "Boolean007")
boolean8.Type = "Fuse"
boolean8.addObjects([body8])

doc.recompute()
